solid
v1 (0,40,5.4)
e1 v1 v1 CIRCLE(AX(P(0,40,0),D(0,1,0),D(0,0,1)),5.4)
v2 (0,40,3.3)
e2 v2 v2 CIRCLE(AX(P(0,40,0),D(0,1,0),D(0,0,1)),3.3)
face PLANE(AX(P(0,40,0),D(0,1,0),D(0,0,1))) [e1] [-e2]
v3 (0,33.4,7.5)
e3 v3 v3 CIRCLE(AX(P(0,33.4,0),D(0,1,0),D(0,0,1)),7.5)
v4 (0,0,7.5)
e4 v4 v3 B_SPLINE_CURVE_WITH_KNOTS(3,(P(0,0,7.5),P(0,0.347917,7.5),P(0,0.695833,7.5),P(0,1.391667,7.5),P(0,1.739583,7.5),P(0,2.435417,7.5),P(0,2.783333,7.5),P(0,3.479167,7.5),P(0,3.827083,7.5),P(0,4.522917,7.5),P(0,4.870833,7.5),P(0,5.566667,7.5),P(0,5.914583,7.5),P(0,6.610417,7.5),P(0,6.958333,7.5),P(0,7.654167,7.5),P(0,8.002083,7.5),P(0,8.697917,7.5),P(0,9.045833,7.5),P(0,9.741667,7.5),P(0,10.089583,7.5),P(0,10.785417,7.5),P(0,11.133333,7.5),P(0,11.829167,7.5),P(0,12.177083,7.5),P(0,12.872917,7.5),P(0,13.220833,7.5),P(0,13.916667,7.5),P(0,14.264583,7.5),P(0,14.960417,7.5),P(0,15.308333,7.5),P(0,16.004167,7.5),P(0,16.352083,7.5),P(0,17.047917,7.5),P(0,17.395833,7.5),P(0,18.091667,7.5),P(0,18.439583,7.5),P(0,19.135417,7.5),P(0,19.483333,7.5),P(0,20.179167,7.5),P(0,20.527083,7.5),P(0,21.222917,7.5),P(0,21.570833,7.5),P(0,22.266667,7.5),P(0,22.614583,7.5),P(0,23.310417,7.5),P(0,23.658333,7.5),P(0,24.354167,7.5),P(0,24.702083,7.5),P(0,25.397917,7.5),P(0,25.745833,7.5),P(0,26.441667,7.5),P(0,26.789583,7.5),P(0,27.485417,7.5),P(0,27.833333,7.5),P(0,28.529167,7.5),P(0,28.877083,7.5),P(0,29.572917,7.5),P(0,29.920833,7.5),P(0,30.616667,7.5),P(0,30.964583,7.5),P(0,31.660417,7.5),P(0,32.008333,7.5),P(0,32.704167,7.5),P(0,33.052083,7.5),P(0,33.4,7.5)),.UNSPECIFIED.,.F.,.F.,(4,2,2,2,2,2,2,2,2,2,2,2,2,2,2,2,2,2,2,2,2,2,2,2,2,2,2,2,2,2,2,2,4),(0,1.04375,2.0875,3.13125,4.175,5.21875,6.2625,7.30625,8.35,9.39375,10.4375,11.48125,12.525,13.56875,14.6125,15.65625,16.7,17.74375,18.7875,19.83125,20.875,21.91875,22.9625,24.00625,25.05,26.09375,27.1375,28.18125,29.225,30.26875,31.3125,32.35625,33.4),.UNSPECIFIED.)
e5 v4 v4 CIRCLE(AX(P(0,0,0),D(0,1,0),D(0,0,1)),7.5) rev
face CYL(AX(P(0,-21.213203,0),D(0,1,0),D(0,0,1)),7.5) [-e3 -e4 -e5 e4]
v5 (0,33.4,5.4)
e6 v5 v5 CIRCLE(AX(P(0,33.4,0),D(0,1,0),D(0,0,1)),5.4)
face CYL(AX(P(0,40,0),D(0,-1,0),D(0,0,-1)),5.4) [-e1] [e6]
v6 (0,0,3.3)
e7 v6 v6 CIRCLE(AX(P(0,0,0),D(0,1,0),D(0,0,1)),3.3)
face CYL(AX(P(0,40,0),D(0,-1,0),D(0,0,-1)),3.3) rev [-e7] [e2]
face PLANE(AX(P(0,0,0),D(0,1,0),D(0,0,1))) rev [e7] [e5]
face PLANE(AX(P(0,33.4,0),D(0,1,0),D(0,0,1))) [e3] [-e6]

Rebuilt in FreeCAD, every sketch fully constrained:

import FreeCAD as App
import Part
import Sketcher
from FreeCAD import Vector

doc = App.newDocument("Part")
body = doc.addObject("PartDesign::Body", "Body")

# Sketch on XZ plane
sketch1 = doc.addObject("Sketcher::SketchObject", "Sketch")
body.addObject(sketch1)
sketch1.AttachmentSupport = (doc.XZ_Plane, [""])
sketch1.MapMode = "FlatFace"
sketch1.addGeometry([
    Part.Circle(Vector(0, 0, 0), Vector(0, 0, 1), 5.4),
    Part.Circle(Vector(0, 0, 0), Vector(0, 0, 1), 3.3),
], False)
sketch1.addConstraint([
    Sketcher.Constraint("Coincident", 0, 3, -1, 1),
    Sketcher.Constraint("Coincident", 1, 3, -1, 1),
    Sketcher.Constraint("Diameter", 0, 10.8),
    Sketcher.Constraint("Diameter", 1, 6.6),
])
pad1 = doc.addObject("PartDesign::Pad", "Pad")
body.addObject(pad1)
pad1.Profile = sketch1
pad1.Length = 40
pad1.Reversed = True

# Sketch on XZ plane
sketch2 = doc.addObject("Sketcher::SketchObject", "Sketch001")
body.addObject(sketch2)
sketch2.AttachmentSupport = (doc.XZ_Plane, [""])
sketch2.MapMode = "FlatFace"
sketch2.addGeometry([
    Part.Circle(Vector(0, 0, 0), Vector(0, 0, 1), 7.5),
    Part.Circle(Vector(0, 0, 0), Vector(0, 0, 1), 3.3),
], False)
sketch2.addConstraint([
    Sketcher.Constraint("Coincident", 0, 3, -1, 1),
    Sketcher.Constraint("Coincident", 1, 3, -1, 1),
    Sketcher.Constraint("Diameter", 0, 15.0),
    Sketcher.Constraint("Diameter", 1, 6.6),
])
pad2 = doc.addObject("PartDesign::Pad", "Pad001")
body.addObject(pad2)
pad2.Profile = sketch2
pad2.Length = 33.4
pad2.Reversed = True

doc.recompute()
